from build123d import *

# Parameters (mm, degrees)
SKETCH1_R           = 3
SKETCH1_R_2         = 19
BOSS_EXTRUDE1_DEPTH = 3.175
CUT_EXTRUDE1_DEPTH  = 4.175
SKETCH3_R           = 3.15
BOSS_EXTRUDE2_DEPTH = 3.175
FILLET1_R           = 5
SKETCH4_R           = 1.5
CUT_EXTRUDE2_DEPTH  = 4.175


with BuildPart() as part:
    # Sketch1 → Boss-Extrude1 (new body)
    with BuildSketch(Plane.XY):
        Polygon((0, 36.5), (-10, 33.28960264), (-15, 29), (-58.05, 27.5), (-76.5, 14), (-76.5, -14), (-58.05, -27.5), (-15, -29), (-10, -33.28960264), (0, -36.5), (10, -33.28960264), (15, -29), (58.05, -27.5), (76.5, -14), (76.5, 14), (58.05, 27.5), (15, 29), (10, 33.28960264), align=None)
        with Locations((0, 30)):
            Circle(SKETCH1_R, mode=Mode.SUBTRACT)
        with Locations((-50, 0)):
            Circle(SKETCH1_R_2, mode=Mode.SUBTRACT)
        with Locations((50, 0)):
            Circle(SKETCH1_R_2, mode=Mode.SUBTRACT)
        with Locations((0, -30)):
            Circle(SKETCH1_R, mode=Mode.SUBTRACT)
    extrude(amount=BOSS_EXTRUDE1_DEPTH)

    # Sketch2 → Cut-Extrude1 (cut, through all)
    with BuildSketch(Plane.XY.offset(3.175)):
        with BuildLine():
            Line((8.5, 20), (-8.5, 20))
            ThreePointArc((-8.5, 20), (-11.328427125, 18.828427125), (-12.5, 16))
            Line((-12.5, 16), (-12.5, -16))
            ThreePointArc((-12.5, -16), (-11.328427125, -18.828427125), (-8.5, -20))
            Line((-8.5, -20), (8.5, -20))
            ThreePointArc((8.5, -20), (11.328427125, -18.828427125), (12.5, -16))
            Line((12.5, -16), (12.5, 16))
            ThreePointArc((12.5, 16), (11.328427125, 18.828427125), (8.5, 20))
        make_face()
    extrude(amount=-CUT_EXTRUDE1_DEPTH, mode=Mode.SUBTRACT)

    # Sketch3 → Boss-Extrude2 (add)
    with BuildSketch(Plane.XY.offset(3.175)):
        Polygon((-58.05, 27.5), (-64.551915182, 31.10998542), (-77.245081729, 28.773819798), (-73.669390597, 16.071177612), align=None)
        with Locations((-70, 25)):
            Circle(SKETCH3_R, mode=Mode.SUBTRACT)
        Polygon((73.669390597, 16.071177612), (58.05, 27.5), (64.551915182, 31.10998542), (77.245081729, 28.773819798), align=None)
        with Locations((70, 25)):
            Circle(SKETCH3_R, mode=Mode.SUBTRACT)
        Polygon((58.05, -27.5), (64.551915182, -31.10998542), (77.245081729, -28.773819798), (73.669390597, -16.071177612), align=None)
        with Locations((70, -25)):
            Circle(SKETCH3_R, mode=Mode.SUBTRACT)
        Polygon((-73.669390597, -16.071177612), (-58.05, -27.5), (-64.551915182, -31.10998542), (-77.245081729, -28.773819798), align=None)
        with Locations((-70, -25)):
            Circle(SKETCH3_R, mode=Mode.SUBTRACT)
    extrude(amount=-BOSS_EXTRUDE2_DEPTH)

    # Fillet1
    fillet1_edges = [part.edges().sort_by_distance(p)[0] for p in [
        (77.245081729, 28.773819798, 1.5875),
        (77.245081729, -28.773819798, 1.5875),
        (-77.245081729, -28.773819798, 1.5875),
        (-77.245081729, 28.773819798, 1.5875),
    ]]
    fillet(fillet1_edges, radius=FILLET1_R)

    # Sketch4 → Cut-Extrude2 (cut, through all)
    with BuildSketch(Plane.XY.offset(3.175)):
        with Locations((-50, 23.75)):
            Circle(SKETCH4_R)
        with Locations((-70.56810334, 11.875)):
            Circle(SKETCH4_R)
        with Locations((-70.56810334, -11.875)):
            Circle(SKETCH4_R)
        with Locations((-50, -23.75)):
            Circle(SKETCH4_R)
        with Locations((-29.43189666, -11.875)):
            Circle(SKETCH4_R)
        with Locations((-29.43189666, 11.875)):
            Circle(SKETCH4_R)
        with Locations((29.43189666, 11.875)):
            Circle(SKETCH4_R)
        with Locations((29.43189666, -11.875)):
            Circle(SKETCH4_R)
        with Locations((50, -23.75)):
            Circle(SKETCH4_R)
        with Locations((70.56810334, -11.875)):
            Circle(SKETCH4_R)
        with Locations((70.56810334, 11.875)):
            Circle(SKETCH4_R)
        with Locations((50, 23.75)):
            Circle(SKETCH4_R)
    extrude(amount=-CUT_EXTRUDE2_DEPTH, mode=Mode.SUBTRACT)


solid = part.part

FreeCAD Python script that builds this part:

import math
import FreeCAD as App
import Part
import Sketcher

V = App.Vector


def edges_at(feature, points):
    """Names of the edges that pass closest to the given points."""
    edges = feature.Shape.Edges
    near = lambda p: min(range(len(edges)), key=lambda i: edges[i].distToShape(Part.Vertex(*p))[0])
    return sorted({f"Edge{near(p) + 1}" for p in points})

doc = App.newDocument("Part")
body = doc.addObject("PartDesign::Body", "Body")

sketch1 = doc.addObject("Sketcher::SketchObject", "Sketch")
body.addObject(sketch1)
sketch1.AttachmentSupport = (doc.XY_Plane, [""])
sketch1.MapMode = "FlatFace"
sketch1.addGeometry(Part.LineSegment(V(0, 36.5, 0), V(-10, 33.3, 0)), False)
sketch1.addGeometry(Part.LineSegment(V(-10, 33.3, 0), V(-15, 29, 0)), False)
sketch1.addGeometry(Part.LineSegment(V(-15, 29, 0), V(-58, 27.5, 0)), False)
sketch1.addGeometry(Part.LineSegment(V(-58, 27.5, 0), V(-76.5, 14, 0)), False)
sketch1.addGeometry(Part.LineSegment(V(-76.5, 14, 0), V(-76.5, -14, 0)), False)
sketch1.addGeometry(Part.LineSegment(V(-76.5, -14, 0), V(-58, -27.5, 0)), False)
sketch1.addGeometry(Part.LineSegment(V(-58, -27.5, 0), V(-15, -29, 0)), False)
sketch1.addGeometry(Part.LineSegment(V(-15, -29, 0), V(-10, -33.3, 0)), False)
sketch1.addGeometry(Part.LineSegment(V(-10, -33.3, 0), V(0, -36.5, 0)), False)
sketch1.addGeometry(Part.LineSegment(V(0, -36.5, 0), V(10, -33.3, 0)), False)
sketch1.addGeometry(Part.LineSegment(V(10, -33.3, 0), V(15, -29, 0)), False)
sketch1.addGeometry(Part.LineSegment(V(15, -29, 0), V(58, -27.5, 0)), False)
sketch1.addGeometry(Part.LineSegment(V(58, -27.5, 0), V(76.5, -14, 0)), False)
sketch1.addGeometry(Part.LineSegment(V(76.5, -14, 0), V(76.5, 14, 0)), False)
sketch1.addGeometry(Part.LineSegment(V(76.5, 14, 0), V(58, 27.5, 0)), False)
sketch1.addGeometry(Part.LineSegment(V(58, 27.5, 0), V(15, 29, 0)), False)
sketch1.addGeometry(Part.LineSegment(V(15, 29, 0), V(10, 33.3, 0)), False)
sketch1.addGeometry(Part.LineSegment(V(10, 33.3, 0), V(0, 36.5, 0)), False)
sketch1.addGeometry(Part.Circle(V(0, -30, 0), V(0, 0, 1), 3), False)
sketch1.addGeometry(Part.Circle(V(-50, 0, 0), V(0, 0, 1), 19), False)
sketch1.addGeometry(Part.Circle(V(50, 0, 0), V(0, 0, 1), 19), False)
sketch1.addGeometry(Part.Circle(V(0, 30, 0), V(0, 0, 1), 3), False)
sketch1.addConstraint(Sketcher.Constraint("Coincident", 0, 2, 1, 1))
sketch1.addConstraint(Sketcher.Constraint("Coincident", 1, 2, 2, 1))
sketch1.addConstraint(Sketcher.Constraint("Coincident", 2, 2, 3, 1))
sketch1.addConstraint(Sketcher.Constraint("Coincident", 3, 2, 4, 1))
sketch1.addConstraint(Sketcher.Constraint("Coincident", 4, 2, 5, 1))
sketch1.addConstraint(Sketcher.Constraint("Coincident", 5, 2, 6, 1))
sketch1.addConstraint(Sketcher.Constraint("Coincident", 6, 2, 7, 1))
sketch1.addConstraint(Sketcher.Constraint("Coincident", 7, 2, 8, 1))
sketch1.addConstraint(Sketcher.Constraint("Coincident", 8, 2, 9, 1))
sketch1.addConstraint(Sketcher.Constraint("Coincident", 9, 2, 10, 1))
sketch1.addConstraint(Sketcher.Constraint("Coincident", 10, 2, 11, 1))
sketch1.addConstraint(Sketcher.Constraint("Coincident", 11, 2, 12, 1))
sketch1.addConstraint(Sketcher.Constraint("Coincident", 12, 2, 13, 1))
sketch1.addConstraint(Sketcher.Constraint("Coincident", 13, 2, 14, 1))
sketch1.addConstraint(Sketcher.Constraint("Coincident", 14, 2, 15, 1))
sketch1.addConstraint(Sketcher.Constraint("Coincident", 15, 2, 16, 1))
sketch1.addConstraint(Sketcher.Constraint("Coincident", 16, 2, 17, 1))
sketch1.addConstraint(Sketcher.Constraint("Coincident", 17, 2, 0, 1))
sketch1.addConstraint(Sketcher.Constraint("Vertical", 4))
sketch1.addConstraint(Sketcher.Constraint("Vertical", 13))
sketch1.addConstraint(Sketcher.Constraint("Equal", 19, 20))
sketch1.addConstraint(Sketcher.Constraint("Equal", 18, 21))
sketch1.addConstraint(Sketcher.Constraint("Symmetric", 19, 3, 20, 3, -1, 1))
sketch1.addConstraint(Sketcher.Constraint("Symmetric", 18, 3, 21, 3, -1, 1))
sketch1.addConstraint(Sketcher.Constraint("Symmetric", 0, 2, 9, 2, -1, 1))
sketch1.addConstraint(Sketcher.Constraint("Symmetric", 1, 2, 10, 2, -1, 1))
sketch1.addConstraint(Sketcher.Constraint("Symmetric", 2, 2, 11, 2, -1, 1))
sketch1.addConstraint(Sketcher.Constraint("Symmetric", 3, 2, 12, 2, -1, 1))
sketch1.addConstraint(Sketcher.Constraint("Symmetric", 5, 2, 14, 2, -1, 1))
sketch1.addConstraint(Sketcher.Constraint("Symmetric", 6, 2, 15, 2, -1, 1))
sketch1.addConstraint(Sketcher.Constraint("Symmetric", 7, 2, 16, 2, -1, 1))
sketch1.addConstraint(Sketcher.Constraint("Symmetric", 8, 2, 17, 2, -1, 1))
sketch1.addConstraint(Sketcher.Constraint("Symmetric", 7, 2, 9, 2, -2))
sketch1.addConstraint(Sketcher.Constraint("Symmetric", 6, 2, 10, 2, -2))
sketch1.addConstraint(Sketcher.Constraint("Symmetric", 5, 2, 11, 2, -2))
sketch1.addConstraint(Sketcher.Constraint("PointOnObject", 18, 3, -2))
sketch1.addConstraint(Sketcher.Constraint("PointOnObject", 19, 3, -1))
sketch1.addConstraint(Sketcher.Constraint("PointOnObject", 8, 2, -2))
sketch1.addConstraint(Sketcher.Constraint("Parallel", 5, 14))
sketch1.addConstraint(Sketcher.Constraint("Horizontal", 4, 2, 12, 2))
sketch1.addConstraint(Sketcher.Constraint("Diameter", 18, 6.0))
sketch1.addConstraint(Sketcher.Constraint("Diameter", 19, 38.0))
sketch1.addConstraint(Sketcher.Constraint("DistanceY", 4, 2, 4, 1, 28.0))
sketch1.addConstraint(Sketcher.Constraint("DistanceY", 18, 3, -1, 1, 30.0))
sketch1.addConstraint(Sketcher.Constraint("DistanceX", 19, 3, -1, 1, 50.0))
sketch1.addConstraint(Sketcher.Constraint("DistanceX", 0, 2, -1, 1, 10.0))
sketch1.addConstraint(Sketcher.Constraint("DistanceX", 1, 2, -1, 1, 15.0))
sketch1.addConstraint(Sketcher.Constraint("DistanceY", -1, 1, 1, 2, 29.0))
sketch1.addConstraint(Sketcher.Constraint("DistanceY", 5, 2, 2, 2, 55.0))
sketch1.addConstraint(Sketcher.Constraint("DistanceY", 8, 2, 5, 2, 9.0))
sketch1.addConstraint(Sketcher.Constraint("DistanceX", 3, 2, -1, 1, 76.5))
sketch1.addConstraint(Sketcher.Constraint("DistanceX", 2, 2, -1, 1, 58.05))
sketch1.addConstraint(Sketcher.Constraint("Distance", 1, 6.58792))
pad1 = doc.addObject("PartDesign::Pad", "Pad")
body.addObject(pad1)
pad1.Profile = sketch1
pad1.Length = 3.175

sketch2 = doc.addObject("Sketcher::SketchObject", "Sketch001")
body.addObject(sketch2)
sketch2.AttachmentSupport = (doc.XY_Plane, [""])
sketch2.MapMode = "FlatFace"
sketch2.AttachmentOffset = App.Placement(V(0, 0, 3.175), App.Rotation())
sketch2.addGeometry(Part.LineSegment(V(8.5, 20, 0), V(-8.5, 20, 0)), False)
sketch2.addGeometry(Part.ArcOfCircle(Part.Circle(V(-8.5, 16, 0), V(0, 0, 1), 4), math.radians(90), math.radians(180)), False)
sketch2.addGeometry(Part.LineSegment(V(-12.5, 16, 0), V(-12.5, -16, 0)), False)
sketch2.addGeometry(Part.ArcOfCircle(Part.Circle(V(-8.5, -16, 0), V(0, 0, 1), 4), math.radians(180), math.radians(270)), False)
sketch2.addGeometry(Part.LineSegment(V(-8.5, -20, 0), V(8.5, -20, 0)), False)
sketch2.addGeometry(Part.ArcOfCircle(Part.Circle(V(8.5, -16, 0), V(0, 0, 1), 4), math.radians(-90), math.radians(0)), False)
sketch2.addGeometry(Part.LineSegment(V(12.5, -16, 0), V(12.5, 16, 0)), False)
sketch2.addGeometry(Part.ArcOfCircle(Part.Circle(V(8.5, 16, 0), V(0, 0, 1), 4), math.radians(0), math.radians(90)), False)
sketch2.addConstraint(Sketcher.Constraint("Tangent", 0, 2, 1, 1))
sketch2.addConstraint(Sketcher.Constraint("Tangent", 1, 2, 2, 1))
sketch2.addConstraint(Sketcher.Constraint("Tangent", 2, 2, 3, 1))
sketch2.addConstraint(Sketcher.Constraint("Tangent", 3, 2, 4, 1))
sketch2.addConstraint(Sketcher.Constraint("Tangent", 4, 2, 5, 1))
sketch2.addConstraint(Sketcher.Constraint("Tangent", 5, 2, 6, 1))
sketch2.addConstraint(Sketcher.Constraint("Tangent", 6, 2, 7, 1))
sketch2.addConstraint(Sketcher.Constraint("Tangent", 7, 2, 0, 1))
sketch2.addConstraint(Sketcher.Constraint("Horizontal", 0))
sketch2.addConstraint(Sketcher.Constraint("Vertical", 2))
sketch2.addConstraint(Sketcher.Constraint("Horizontal", 4))
sketch2.addConstraint(Sketcher.Constraint("Vertical", 6))
sketch2.addConstraint(Sketcher.Constraint("Equal", 1, 3))
sketch2.addConstraint(Sketcher.Constraint("Equal", 3, 5))
sketch2.addConstraint(Sketcher.Constraint("Equal", 5, 7))
sketch2.addConstraint(Sketcher.Constraint("Symmetric", 1, 3, 5, 3, -1, 1))
sketch2.addConstraint(Sketcher.Constraint("Radius", 1, 4.0))
sketch2.addConstraint(Sketcher.Constraint("DistanceX", 0, 2, 0, 1, 17.0))
sketch2.addConstraint(Sketcher.Constraint("DistanceY", 2, 2, 2, 1, 32.0))
pocket1 = doc.addObject("PartDesign::Pocket", "Pocket")
body.addObject(pocket1)
pocket1.Profile = sketch2
pocket1.Type = "ThroughAll"

sketch3 = doc.addObject("Sketcher::SketchObject", "Sketch002")
body.addObject(sketch3)
sketch3.AttachmentSupport = (doc.XY_Plane, [""])
sketch3.MapMode = "FlatFace"
sketch3.AttachmentOffset = App.Placement(V(0, 0, 3.175), App.Rotation())
sketch3.addGeometry(Part.LineSegment(V(-58, 27.5, 0), V(-64.6, 31.1, 0)), False)
sketch3.addGeometry(Part.LineSegment(V(-64.6, 31.1, 0), V(-77.2, 28.8, 0)), False)
sketch3.addGeometry(Part.LineSegment(V(-77.2, 28.8, 0), V(-73.7, 16.1, 0)), False)
sketch3.addGeometry(Part.LineSegment(V(-73.7, 16.1, 0), V(-58, 27.5, 0)), False)
sketch3.addGeometry(Part.Circle(V(-70, 25, 0), V(0, 0, 1), 3.1), False)
sketch3.addGeometry(Part.LineSegment(V(58, 27.5, 0), V(73.7, 16.1, 0)), False)
sketch3.addGeometry(Part.LineSegment(V(73.7, 16.1, 0), V(77.2, 28.8, 0)), False)
sketch3.addGeometry(Part.LineSegment(V(77.2, 28.8, 0), V(64.6, 31.1, 0)), False)
sketch3.addGeometry(Part.LineSegment(V(64.6, 31.1, 0), V(58, 27.5, 0)), False)
sketch3.addGeometry(Part.Circle(V(70, 25, 0), V(0, 0, 1), 3.1), False)
sketch3.addGeometry(Part.LineSegment(V(58, -27.5, 0), V(64.6, -31.1, 0)), False)
sketch3.addGeometry(Part.LineSegment(V(64.6, -31.1, 0), V(77.2, -28.8, 0)), False)
sketch3.addGeometry(Part.LineSegment(V(77.2, -28.8, 0), V(73.7, -16.1, 0)), False)
sketch3.addGeometry(Part.LineSegment(V(73.7, -16.1, 0), V(58, -27.5, 0)), False)
sketch3.addGeometry(Part.Circle(V(70, -25, 0), V(0, 0, 1), 3.1), False)
sketch3.addGeometry(Part.LineSegment(V(-58, -27.5, 0), V(-73.7, -16.1, 0)), False)
sketch3.addGeometry(Part.LineSegment(V(-73.7, -16.1, 0), V(-77.2, -28.8, 0)), False)
sketch3.addGeometry(Part.LineSegment(V(-77.2, -28.8, 0), V(-64.6, -31.1, 0)), False)
sketch3.addGeometry(Part.LineSegment(V(-64.6, -31.1, 0), V(-58, -27.5, 0)), False)
sketch3.addGeometry(Part.Circle(V(-70, -25, 0), V(0, 0, 1), 3.1), False)
sketch3.addConstraint(Sketcher.Constraint("Coincident", 0, 2, 1, 1))
sketch3.addConstraint(Sketcher.Constraint("Coincident", 1, 2, 2, 1))
sketch3.addConstraint(Sketcher.Constraint("Coincident", 2, 2, 3, 1))
sketch3.addConstraint(Sketcher.Constraint("Coincident", 3, 2, 0, 1))
sketch3.addConstraint(Sketcher.Constraint("Coincident", 5, 2, 6, 1))
sketch3.addConstraint(Sketcher.Constraint("Coincident", 6, 2, 7, 1))
sketch3.addConstraint(Sketcher.Constraint("Coincident", 7, 2, 8, 1))
sketch3.addConstraint(Sketcher.Constraint("Coincident", 8, 2, 5, 1))
sketch3.addConstraint(Sketcher.Constraint("Coincident", 10, 2, 11, 1))
sketch3.addConstraint(Sketcher.Constraint("Coincident", 11, 2, 12, 1))
sketch3.addConstraint(Sketcher.Constraint("Coincident", 12, 2, 13, 1))
sketch3.addConstraint(Sketcher.Constraint("Coincident", 13, 2, 10, 1))
sketch3.addConstraint(Sketcher.Constraint("Coincident", 15, 2, 16, 1))
sketch3.addConstraint(Sketcher.Constraint("Coincident", 16, 2, 17, 1))
sketch3.addConstraint(Sketcher.Constraint("Coincident", 17, 2, 18, 1))
sketch3.addConstraint(Sketcher.Constraint("Coincident", 18, 2, 15, 1))
sketch3.addConstraint(Sketcher.Constraint("Equal", 4, 9))
sketch3.addConstraint(Sketcher.Constraint("Equal", 9, 14))
sketch3.addConstraint(Sketcher.Constraint("Equal", 14, 19))
sketch3.addConstraint(Sketcher.Constraint("Symmetric", 4, 3, 14, 3, -1, 1))
sketch3.addConstraint(Sketcher.Constraint("Symmetric", 9, 3, 19, 3, -1, 1))
sketch3.addConstraint(Sketcher.Constraint("Symmetric", 0, 2, 10, 2, -1, 1))
sketch3.addConstraint(Sketcher.Constraint("Symmetric", 1, 2, 11, 2, -1, 1))
sketch3.addConstraint(Sketcher.Constraint("Symmetric", 2, 2, 12, 2, -1, 1))
sketch3.addConstraint(Sketcher.Constraint("Symmetric", 3, 2, 13, 2, -1, 1))
sketch3.addConstraint(Sketcher.Constraint("Symmetric", 5, 2, 15, 2, -1, 1))
sketch3.addConstraint(Sketcher.Constraint("Symmetric", 6, 2, 16, 2, -1, 1))
sketch3.addConstraint(Sketcher.Constraint("Symmetric", 7, 2, 17, 2, -1, 1))
sketch3.addConstraint(Sketcher.Constraint("Symmetric", 8, 2, 18, 2, -1, 1))
sketch3.addConstraint(Sketcher.Constraint("Symmetric", 4, 3, 9, 3, -2))
sketch3.addConstraint(Sketcher.Constraint("Symmetric", 2, 2, 5, 2, -2))
sketch3.addConstraint(Sketcher.Constraint("Symmetric", 1, 2, 6, 2, -2))
sketch3.addConstraint(Sketcher.Constraint("Symmetric", 0, 2, 7, 2, -2))
sketch3.addConstraint(Sketcher.Constraint("Symmetric", 3, 2, 8, 2, -2))
sketch3.addConstraint(Sketcher.Constraint("Diameter", 4, 6.3))
sketch3.addConstraint(Sketcher.Constraint("DistanceX", 4, 3, -1, 1, 70.0))
sketch3.addConstraint(Sketcher.Constraint("DistanceY", -1, 1, 4, 3, 25.0))
sketch3.addConstraint(Sketcher.Constraint("DistanceY", -1, 1, 3, 2, 27.5))
sketch3.addConstraint(Sketcher.Constraint("DistanceX", 3, 2, -1, 1, 58.05))
sketch3.addConstraint(Sketcher.Constraint("Distance", 0, 7.436861))
sketch3.addConstraint(Sketcher.Constraint("Distance", 1, 12.906361))
sketch3.addConstraint(Sketcher.Constraint("DistanceX", 1, 2, -1, 1, 77.245082))
sketch3.addConstraint(Sketcher.Constraint("DistanceY", -1, 1, 1, 2, 28.77382))
sketch3.addConstraint(Sketcher.Constraint("DistanceX", 2, 2, -1, 1, 73.669391))
sketch3.addConstraint(Sketcher.Constraint("Distance", 2, 13.196313))
pad2 = doc.addObject("PartDesign::Pad", "Pad001")
body.addObject(pad2)
pad2.Profile = sketch3
pad2.Length = 3.175
pad2.Reversed = True
doc.recompute()

fillet = doc.addObject("PartDesign::Fillet", "Fillet")
body.addObject(fillet)
fillet.Base = (pad2, edges_at(pad2, [
    (77.245, 28.774, 1.587),
    (77.245, -28.774, 1.587),
    (-77.245, -28.774, 1.587),
    (-77.245, 28.774, 1.587),
]))
fillet.Radius = 5

sketch4 = doc.addObject("Sketcher::SketchObject", "Sketch003")
body.addObject(sketch4)
sketch4.AttachmentSupport = (doc.XY_Plane, [""])
sketch4.MapMode = "FlatFace"
sketch4.AttachmentOffset = App.Placement(V(0, 0, 3.175), App.Rotation())
sketch4.addGeometry(Part.Circle(V(-50, 23.8, 0), V(0, 0, 1), 1.5), False)
sketch4.addGeometry(Part.Circle(V(-70.6, 11.9, 0), V(0, 0, 1), 1.5), False)
sketch4.addGeometry(Part.Circle(V(-70.6, -11.9, 0), V(0, 0, 1), 1.5), False)
sketch4.addGeometry(Part.Circle(V(-50, -23.8, 0), V(0, 0, 1), 1.5), False)
sketch4.addGeometry(Part.Circle(V(-29.4, -11.9, 0), V(0, 0, 1), 1.5), False)
sketch4.addGeometry(Part.Circle(V(-29.4, 11.9, 0), V(0, 0, 1), 1.5), False)
sketch4.addGeometry(Part.Circle(V(29.4, 11.9, 0), V(0, 0, 1), 1.5), False)
sketch4.addGeometry(Part.Circle(V(29.4, -11.9, 0), V(0, 0, 1), 1.5), False)
sketch4.addGeometry(Part.Circle(V(50, -23.8, 0), V(0, 0, 1), 1.5), False)
sketch4.addGeometry(Part.Circle(V(70.6, -11.9, 0), V(0, 0, 1), 1.5), False)
sketch4.addGeometry(Part.Circle(V(70.6, 11.9, 0), V(0, 0, 1), 1.5), False)
sketch4.addGeometry(Part.Circle(V(50, 23.8, 0), V(0, 0, 1), 1.5), False)
sketch4.addConstraint(Sketcher.Constraint("Equal", 0, 1))
sketch4.addConstraint(Sketcher.Constraint("Equal", 1, 2))
sketch4.addConstraint(Sketcher.Constraint("Equal", 2, 3))
sketch4.addConstraint(Sketcher.Constraint("Equal", 3, 4))
sketch4.addConstraint(Sketcher.Constraint("Equal", 4, 5))
sketch4.addConstraint(Sketcher.Constraint("Equal", 5, 6))
sketch4.addConstraint(Sketcher.Constraint("Equal", 6, 7))
sketch4.addConstraint(Sketcher.Constraint("Equal", 7, 8))
sketch4.addConstraint(Sketcher.Constraint("Equal", 8, 9))
sketch4.addConstraint(Sketcher.Constraint("Equal", 9, 10))
sketch4.addConstraint(Sketcher.Constraint("Equal", 10, 11))
sketch4.addConstraint(Sketcher.Constraint("Symmetric", 4, 3, 6, 3, -1, 1))
sketch4.addConstraint(Sketcher.Constraint("Symmetric", 5, 3, 7, 3, -1, 1))
sketch4.addConstraint(Sketcher.Constraint("Symmetric", 0, 3, 8, 3, -1, 1))
sketch4.addConstraint(Sketcher.Constraint("Symmetric", 1, 3, 9, 3, -1, 1))
sketch4.addConstraint(Sketcher.Constraint("Symmetric", 2, 3, 10, 3, -1, 1))
sketch4.addConstraint(Sketcher.Constraint("Symmetric", 3, 3, 11, 3, -1, 1))
sketch4.addConstraint(Sketcher.Constraint("Symmetric", 5, 3, 6, 3, -2))
sketch4.addConstraint(Sketcher.Constraint("Symmetric", 3, 3, 8, 3, -2))
sketch4.addConstraint(Sketcher.Constraint("Symmetric", 2, 3, 9, 3, -2))
sketch4.addConstraint(Sketcher.Constraint("Horizontal", 2, 3, 4, 3))
sketch4.addConstraint(Sketcher.Constraint("Diameter", 0, 3.0))
sketch4.addConstraint(Sketcher.Constraint("DistanceX", 0, 3, -1, 1, 50.0))
sketch4.addConstraint(Sketcher.Constraint("DistanceX", 1, 3, 6, 3, 100.0))
sketch4.addConstraint(Sketcher.Constraint("DistanceY", 3, 3, 0, 3, 47.5))
sketch4.addConstraint(Sketcher.Constraint("DistanceY", 2, 3, 1, 3, 23.75))
sketch4.addConstraint(Sketcher.Constraint("DistanceX", 1, 3, -1, 1, 70.568103))
pocket2 = doc.addObject("PartDesign::Pocket", "Pocket001")
body.addObject(pocket2)
pocket2.Profile = sketch4
pocket2.Type = "ThroughAll"

doc.recompute()
